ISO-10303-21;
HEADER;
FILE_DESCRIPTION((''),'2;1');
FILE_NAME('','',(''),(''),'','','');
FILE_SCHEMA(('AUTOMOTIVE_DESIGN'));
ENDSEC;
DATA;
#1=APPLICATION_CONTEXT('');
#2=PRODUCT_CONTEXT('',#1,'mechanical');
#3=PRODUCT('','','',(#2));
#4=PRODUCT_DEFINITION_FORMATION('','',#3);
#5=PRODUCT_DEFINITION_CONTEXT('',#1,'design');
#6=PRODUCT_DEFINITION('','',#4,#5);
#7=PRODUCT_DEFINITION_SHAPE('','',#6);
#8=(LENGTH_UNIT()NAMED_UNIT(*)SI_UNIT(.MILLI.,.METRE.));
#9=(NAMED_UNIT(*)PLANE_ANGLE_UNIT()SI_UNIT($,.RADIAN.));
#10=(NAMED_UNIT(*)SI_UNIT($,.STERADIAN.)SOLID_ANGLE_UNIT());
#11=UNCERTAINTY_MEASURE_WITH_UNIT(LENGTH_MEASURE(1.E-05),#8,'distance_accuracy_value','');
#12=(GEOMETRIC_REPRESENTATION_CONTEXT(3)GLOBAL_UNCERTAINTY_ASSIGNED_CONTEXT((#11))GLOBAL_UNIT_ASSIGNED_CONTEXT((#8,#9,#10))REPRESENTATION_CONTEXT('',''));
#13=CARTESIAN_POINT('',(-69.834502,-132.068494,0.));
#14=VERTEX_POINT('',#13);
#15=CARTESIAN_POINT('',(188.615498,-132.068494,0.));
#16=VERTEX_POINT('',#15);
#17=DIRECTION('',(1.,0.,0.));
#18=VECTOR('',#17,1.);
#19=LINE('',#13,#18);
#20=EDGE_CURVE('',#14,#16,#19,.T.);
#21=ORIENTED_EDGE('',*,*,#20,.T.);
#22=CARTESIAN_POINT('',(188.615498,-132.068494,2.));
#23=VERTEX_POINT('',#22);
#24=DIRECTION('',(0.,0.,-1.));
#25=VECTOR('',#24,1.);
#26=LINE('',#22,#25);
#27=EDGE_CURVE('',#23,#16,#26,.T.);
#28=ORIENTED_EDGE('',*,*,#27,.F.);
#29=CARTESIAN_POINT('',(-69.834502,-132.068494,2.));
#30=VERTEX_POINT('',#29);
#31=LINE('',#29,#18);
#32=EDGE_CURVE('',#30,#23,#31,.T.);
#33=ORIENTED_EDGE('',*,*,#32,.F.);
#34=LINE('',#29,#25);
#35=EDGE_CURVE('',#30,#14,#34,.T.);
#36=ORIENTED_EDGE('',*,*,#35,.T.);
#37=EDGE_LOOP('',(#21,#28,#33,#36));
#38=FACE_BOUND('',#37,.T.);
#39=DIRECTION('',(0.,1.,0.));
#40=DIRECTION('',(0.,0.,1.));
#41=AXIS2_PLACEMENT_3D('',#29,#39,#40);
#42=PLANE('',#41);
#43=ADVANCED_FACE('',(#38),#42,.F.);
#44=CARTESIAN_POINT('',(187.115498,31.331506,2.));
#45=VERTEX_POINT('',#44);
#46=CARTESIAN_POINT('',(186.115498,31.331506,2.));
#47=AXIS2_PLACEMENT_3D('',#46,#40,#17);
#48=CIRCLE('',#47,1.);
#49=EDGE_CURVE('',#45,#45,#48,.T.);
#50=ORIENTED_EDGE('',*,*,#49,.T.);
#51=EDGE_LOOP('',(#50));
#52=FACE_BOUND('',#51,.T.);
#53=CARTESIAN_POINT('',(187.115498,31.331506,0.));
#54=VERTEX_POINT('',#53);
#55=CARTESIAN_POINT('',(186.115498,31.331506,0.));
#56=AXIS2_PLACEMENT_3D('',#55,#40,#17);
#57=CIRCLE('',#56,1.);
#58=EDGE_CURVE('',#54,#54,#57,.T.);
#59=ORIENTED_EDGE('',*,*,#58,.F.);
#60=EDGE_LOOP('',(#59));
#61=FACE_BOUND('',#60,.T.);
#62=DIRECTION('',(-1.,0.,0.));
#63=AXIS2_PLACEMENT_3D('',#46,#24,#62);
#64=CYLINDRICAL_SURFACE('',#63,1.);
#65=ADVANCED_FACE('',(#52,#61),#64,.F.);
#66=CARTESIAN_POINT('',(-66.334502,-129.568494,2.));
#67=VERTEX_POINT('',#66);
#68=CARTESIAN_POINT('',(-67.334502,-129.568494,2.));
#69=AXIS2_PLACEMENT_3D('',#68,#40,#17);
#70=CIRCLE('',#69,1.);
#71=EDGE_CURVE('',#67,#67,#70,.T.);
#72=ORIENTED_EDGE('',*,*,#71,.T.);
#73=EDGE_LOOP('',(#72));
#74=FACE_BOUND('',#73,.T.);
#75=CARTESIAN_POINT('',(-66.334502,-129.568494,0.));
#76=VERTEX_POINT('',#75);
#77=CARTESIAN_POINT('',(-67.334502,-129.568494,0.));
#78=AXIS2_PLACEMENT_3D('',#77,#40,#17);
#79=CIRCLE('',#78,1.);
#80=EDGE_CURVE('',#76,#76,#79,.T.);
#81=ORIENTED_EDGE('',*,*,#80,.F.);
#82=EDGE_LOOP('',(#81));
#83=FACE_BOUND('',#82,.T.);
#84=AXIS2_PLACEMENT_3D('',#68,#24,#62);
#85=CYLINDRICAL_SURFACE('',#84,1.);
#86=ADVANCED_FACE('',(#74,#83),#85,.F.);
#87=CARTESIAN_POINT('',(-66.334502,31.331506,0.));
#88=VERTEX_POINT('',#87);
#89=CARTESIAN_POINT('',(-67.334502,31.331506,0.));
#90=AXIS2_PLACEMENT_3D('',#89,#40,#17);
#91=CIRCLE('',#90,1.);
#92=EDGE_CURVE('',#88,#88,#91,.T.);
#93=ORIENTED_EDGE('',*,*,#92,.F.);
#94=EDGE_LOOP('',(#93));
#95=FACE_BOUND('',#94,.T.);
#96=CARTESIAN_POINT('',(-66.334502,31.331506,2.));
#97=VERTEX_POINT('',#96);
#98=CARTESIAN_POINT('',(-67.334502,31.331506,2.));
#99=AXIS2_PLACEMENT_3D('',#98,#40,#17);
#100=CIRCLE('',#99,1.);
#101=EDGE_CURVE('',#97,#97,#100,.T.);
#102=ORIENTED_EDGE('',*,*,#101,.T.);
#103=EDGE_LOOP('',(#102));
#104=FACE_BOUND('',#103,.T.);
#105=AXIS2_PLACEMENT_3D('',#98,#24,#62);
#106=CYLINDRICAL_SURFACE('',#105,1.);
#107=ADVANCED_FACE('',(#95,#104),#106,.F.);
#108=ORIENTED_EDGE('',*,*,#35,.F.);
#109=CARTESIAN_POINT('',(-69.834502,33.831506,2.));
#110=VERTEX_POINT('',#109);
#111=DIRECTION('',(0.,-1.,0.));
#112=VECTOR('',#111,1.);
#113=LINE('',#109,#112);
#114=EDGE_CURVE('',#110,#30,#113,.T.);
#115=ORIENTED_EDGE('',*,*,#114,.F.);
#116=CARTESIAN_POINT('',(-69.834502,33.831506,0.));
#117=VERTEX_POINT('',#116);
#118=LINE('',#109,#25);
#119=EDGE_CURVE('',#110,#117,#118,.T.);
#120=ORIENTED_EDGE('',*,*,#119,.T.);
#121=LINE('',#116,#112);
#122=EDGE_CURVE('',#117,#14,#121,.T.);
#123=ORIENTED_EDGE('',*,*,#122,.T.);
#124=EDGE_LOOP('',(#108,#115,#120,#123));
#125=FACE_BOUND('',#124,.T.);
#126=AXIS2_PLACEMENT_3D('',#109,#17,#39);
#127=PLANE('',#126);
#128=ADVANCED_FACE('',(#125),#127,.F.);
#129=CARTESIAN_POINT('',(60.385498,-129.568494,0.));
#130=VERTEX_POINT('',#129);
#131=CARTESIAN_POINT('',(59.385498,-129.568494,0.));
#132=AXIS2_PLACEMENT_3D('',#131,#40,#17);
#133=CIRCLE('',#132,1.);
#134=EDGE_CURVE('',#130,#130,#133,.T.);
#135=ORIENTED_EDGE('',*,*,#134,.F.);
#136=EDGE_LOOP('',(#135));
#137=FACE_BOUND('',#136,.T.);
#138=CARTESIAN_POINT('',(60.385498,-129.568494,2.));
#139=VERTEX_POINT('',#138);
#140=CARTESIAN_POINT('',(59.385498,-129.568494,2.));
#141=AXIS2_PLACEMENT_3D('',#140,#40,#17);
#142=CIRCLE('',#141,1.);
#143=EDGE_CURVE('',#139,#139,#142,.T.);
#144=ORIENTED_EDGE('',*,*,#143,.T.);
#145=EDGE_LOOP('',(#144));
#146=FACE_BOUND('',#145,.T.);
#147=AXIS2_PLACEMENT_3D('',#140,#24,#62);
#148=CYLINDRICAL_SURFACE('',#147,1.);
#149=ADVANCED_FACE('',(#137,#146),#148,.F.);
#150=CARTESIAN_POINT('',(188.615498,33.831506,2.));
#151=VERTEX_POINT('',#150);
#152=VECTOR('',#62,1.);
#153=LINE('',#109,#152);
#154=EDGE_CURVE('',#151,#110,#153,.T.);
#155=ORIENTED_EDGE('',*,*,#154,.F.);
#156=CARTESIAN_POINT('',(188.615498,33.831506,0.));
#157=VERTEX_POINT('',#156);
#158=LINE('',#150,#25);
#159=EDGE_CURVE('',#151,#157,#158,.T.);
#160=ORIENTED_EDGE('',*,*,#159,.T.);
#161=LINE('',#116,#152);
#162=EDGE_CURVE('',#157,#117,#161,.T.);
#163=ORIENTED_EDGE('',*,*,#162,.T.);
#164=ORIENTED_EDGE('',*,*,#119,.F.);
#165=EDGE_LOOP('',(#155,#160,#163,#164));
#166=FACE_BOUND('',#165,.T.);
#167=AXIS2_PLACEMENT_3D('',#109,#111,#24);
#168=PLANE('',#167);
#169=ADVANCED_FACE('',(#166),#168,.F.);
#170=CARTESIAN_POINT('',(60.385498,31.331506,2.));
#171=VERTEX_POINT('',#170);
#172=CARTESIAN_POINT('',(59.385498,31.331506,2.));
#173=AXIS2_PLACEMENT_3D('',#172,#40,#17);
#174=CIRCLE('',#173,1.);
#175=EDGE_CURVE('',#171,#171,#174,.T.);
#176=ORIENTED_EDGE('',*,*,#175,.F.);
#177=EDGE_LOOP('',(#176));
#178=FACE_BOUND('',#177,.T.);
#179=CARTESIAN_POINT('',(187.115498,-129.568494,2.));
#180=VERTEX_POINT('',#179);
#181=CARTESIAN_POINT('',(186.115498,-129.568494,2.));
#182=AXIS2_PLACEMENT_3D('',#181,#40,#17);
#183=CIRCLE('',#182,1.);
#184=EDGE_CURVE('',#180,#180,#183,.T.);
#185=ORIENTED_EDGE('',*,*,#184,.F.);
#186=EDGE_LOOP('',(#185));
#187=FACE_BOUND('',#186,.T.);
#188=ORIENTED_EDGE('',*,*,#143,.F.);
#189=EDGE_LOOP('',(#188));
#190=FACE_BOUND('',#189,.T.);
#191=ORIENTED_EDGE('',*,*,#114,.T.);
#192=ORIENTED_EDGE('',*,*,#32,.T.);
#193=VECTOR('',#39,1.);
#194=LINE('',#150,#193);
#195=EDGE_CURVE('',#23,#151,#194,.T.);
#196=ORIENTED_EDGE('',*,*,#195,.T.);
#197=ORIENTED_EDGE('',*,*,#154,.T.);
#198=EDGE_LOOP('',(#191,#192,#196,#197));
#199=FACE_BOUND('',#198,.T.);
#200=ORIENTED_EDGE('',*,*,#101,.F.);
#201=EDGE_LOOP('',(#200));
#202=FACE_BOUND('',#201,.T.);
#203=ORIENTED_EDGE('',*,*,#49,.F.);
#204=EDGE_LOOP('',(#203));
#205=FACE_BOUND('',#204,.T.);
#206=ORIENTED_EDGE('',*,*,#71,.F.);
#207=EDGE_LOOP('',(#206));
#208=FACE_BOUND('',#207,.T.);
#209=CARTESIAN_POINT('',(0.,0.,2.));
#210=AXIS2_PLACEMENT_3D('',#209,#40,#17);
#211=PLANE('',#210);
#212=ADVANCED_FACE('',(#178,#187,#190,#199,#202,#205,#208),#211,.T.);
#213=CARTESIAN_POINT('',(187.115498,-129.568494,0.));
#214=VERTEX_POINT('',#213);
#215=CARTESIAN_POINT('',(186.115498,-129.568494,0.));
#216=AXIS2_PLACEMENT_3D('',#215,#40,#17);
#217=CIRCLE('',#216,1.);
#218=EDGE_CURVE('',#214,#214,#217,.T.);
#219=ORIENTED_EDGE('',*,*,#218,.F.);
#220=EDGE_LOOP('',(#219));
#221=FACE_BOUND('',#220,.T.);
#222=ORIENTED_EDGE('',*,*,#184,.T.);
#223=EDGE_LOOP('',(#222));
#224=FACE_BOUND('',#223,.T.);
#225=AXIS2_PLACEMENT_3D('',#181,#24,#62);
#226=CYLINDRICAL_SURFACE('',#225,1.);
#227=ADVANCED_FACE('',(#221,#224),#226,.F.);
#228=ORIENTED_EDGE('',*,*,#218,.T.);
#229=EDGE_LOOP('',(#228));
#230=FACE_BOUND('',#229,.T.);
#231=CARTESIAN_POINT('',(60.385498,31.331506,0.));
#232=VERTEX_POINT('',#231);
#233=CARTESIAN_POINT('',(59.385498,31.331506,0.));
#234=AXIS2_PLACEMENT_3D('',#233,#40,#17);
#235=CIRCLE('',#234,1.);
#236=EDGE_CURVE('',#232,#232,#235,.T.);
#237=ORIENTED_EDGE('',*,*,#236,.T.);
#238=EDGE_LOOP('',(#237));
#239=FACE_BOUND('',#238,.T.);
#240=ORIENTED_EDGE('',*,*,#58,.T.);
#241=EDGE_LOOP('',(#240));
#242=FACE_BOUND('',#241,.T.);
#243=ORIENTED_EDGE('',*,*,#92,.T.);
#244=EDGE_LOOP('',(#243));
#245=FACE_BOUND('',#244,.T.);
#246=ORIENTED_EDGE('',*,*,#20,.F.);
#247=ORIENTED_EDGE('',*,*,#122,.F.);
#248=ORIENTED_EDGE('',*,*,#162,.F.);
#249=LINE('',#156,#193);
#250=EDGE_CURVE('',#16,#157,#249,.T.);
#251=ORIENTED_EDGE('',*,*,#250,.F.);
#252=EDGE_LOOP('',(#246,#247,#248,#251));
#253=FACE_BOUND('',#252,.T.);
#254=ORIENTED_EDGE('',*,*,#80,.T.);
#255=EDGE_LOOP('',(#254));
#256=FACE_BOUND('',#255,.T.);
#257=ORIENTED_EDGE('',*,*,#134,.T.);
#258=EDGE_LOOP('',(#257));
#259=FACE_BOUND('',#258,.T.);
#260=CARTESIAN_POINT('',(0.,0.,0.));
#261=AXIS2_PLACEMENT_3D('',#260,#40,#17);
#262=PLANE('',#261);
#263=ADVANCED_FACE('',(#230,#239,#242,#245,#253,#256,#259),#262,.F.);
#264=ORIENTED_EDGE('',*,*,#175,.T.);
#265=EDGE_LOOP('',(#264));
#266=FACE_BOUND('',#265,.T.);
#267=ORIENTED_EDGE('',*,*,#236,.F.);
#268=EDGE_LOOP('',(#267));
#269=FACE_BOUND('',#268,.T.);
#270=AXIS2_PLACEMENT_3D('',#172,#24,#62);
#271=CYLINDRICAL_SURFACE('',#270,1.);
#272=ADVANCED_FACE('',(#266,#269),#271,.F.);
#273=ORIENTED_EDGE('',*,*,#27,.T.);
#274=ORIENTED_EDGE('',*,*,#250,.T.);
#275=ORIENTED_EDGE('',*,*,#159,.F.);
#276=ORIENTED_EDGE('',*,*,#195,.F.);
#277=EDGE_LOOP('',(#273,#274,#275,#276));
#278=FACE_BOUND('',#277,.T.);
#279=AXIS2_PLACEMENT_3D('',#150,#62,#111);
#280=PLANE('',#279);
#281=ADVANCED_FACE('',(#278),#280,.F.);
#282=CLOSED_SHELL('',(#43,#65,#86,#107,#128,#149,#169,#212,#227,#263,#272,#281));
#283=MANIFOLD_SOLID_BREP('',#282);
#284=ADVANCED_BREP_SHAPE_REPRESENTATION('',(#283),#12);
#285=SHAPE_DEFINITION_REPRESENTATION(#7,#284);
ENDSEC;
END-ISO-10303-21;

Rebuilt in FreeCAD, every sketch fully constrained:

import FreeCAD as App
import Part
import Sketcher
from FreeCAD import Vector
Q = App.Units.Quantity

doc = App.newDocument("Part")
body = doc.addObject("PartDesign::Body", "Body")

sketch1 = doc.addObject("Sketcher::SketchObject", "Sketch")
body.addObject(sketch1)
sketch1.AttachmentSupport = (doc.XY_Plane, [""])
sketch1.MapMode = "FlatFace"
sketch1.addGeometry([
    Part.LineSegment(Vector(-69.8, 33.8, 0), Vector(-69.8, -132.1, 0)),
    Part.LineSegment(Vector(-69.8, -132.1, 0), Vector(188.6, -132.1, 0)),
    Part.LineSegment(Vector(188.6, -132.1, 0), Vector(188.6, 33.8, 0)),
    Part.LineSegment(Vector(188.6, 33.8, 0), Vector(-69.8, 33.8, 0)),
    Part.Circle(Vector(-67.3, -129.6, 0), Vector(0, 0, 1), 1),
    Part.Circle(Vector(59.4, -129.6, 0), Vector(0, 0, 1), 1),
    Part.Circle(Vector(186.1, -129.6, 0), Vector(0, 0, 1), 1),
    Part.Circle(Vector(-67.3, 31.3, 0), Vector(0, 0, 1), 1),
    Part.Circle(Vector(59.4, 31.3, 0), Vector(0, 0, 1), 1),
    Part.Circle(Vector(186.1, 31.3, 0), Vector(0, 0, 1), 1),
], False)
sketch1.addConstraint([
    Sketcher.Constraint("Coincident", 0, 2, 1, 1),
    Sketcher.Constraint("Coincident", 1, 2, 2, 1),
    Sketcher.Constraint("Coincident", 2, 2, 3, 1),
    Sketcher.Constraint("Coincident", 3, 2, 0, 1),
    Sketcher.Constraint("Vertical", 0),
    Sketcher.Constraint("Horizontal", 1),
    Sketcher.Constraint("Vertical", 2),
    Sketcher.Constraint("Horizontal", 3),
    Sketcher.Constraint("Equal", 4, 5),
    Sketcher.Constraint("Equal", 5, 6),
    Sketcher.Constraint("Equal", 6, 7),
    Sketcher.Constraint("Equal", 7, 8),
    Sketcher.Constraint("Equal", 8, 9),
    Sketcher.Constraint("Horizontal", 4, 3, 5, 3),
    Sketcher.Constraint("Horizontal", 5, 3, 6, 3),
    Sketcher.Constraint("Horizontal", 7, 3, 8, 3),
    Sketcher.Constraint("Horizontal", 8, 3, 9, 3),
    Sketcher.Constraint("Vertical", 4, 3, 7, 3),
    Sketcher.Constraint("Vertical", 5, 3, 8, 3),
    Sketcher.Constraint("Vertical", 6, 3, 9, 3),
    Sketcher.Constraint("Diameter", 4, Q("2 mm")),
    Sketcher.Constraint("DistanceY", 0, 2, 0, 1, Q("165.9 mm")),
    Sketcher.Constraint("DistanceX", 1, 1, 1, 2, Q("258.45 mm")),
    Sketcher.Constraint("DistanceY", 4, 3, 7, 3, Q("160.9 mm")),
    Sketcher.Constraint("DistanceX", 0, 2, 4, 3, Q("2.5 mm")),
    Sketcher.Constraint("DistanceY", 0, 2, 4, 3, Q("2.5 mm")),
    Sketcher.Constraint("DistanceX", 6, 3, 1, 2, Q("2.5 mm")),
    Sketcher.Constraint("DistanceX", 4, 3, 5, 3, Q("126.72 mm")),
    Sketcher.Constraint("DistanceX", 4, 3, -1, 1, Q("67.334502 mm")),
    Sketcher.Constraint("DistanceY", 4, 3, -1, 1, Q("129.568494 mm")),
])
pad1 = doc.addObject("PartDesign::Pad", "Pad")
body.addObject(pad1)
pad1.Profile = sketch1
pad1.Length = 2

doc.recompute()
